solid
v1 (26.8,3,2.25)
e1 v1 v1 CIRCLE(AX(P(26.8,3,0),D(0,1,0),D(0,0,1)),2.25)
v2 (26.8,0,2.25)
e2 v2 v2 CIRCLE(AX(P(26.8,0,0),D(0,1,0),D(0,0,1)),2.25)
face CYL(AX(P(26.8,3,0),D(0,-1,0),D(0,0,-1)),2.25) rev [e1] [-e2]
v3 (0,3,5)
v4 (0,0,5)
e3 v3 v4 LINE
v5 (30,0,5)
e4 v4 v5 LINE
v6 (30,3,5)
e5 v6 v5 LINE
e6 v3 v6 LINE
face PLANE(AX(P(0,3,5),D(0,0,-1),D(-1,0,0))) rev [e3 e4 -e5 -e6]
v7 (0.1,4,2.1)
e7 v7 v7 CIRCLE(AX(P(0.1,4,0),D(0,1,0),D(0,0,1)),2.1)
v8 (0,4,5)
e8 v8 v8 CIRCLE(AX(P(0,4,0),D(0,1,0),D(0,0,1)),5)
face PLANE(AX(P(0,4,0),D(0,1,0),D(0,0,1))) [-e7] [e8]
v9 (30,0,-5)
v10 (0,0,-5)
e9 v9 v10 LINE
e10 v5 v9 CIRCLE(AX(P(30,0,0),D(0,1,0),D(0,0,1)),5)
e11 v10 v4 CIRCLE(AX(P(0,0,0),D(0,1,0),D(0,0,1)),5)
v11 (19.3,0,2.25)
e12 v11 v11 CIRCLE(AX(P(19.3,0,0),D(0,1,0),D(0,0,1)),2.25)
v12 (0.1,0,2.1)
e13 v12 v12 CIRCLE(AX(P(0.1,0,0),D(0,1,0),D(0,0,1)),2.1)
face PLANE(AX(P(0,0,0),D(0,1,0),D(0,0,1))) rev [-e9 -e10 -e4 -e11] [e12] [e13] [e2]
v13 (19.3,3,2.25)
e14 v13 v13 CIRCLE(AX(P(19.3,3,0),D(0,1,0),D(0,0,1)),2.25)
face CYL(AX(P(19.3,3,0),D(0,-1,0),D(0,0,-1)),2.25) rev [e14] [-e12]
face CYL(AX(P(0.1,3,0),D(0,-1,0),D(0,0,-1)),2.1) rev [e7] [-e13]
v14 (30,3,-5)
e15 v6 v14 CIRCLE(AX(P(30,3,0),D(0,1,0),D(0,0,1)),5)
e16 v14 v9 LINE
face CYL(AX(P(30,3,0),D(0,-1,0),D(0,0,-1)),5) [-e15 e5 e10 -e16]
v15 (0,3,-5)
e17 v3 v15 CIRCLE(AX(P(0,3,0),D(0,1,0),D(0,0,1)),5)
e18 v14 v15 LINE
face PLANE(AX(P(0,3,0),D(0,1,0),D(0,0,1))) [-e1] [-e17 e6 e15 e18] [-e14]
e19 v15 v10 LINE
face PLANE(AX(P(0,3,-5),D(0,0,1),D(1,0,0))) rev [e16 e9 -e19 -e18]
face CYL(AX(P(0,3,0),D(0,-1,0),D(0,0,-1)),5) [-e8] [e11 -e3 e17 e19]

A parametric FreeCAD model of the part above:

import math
import FreeCAD as App
import Part
import Sketcher
from FreeCAD import Vector

doc = App.newDocument("Part")
body = doc.addObject("PartDesign::Body", "Body")

# Sketch on XZ plane
sketch1 = body.newObject("Sketcher::SketchObject", "Sketch")
sketch1.AttachmentSupport = (doc.getObject("XZ_Plane"), [""])
sketch1.MapMode = "FlatFace"
sketch1.addGeometry([
    Part.LineSegment(Vector(30, -5, 0), Vector(0, -5, 0)),  # 0
    Part.ArcOfCircle(Part.Circle(Vector(0, 0, 0), Vector(0, 0, 1), 5), math.radians(90), math.radians(270)),  # 1
    Part.LineSegment(Vector(0, 5, 0), Vector(30, 5, 0)),  # 2
    Part.ArcOfCircle(Part.Circle(Vector(30, 0, 0), Vector(0, 0, 1), 5), math.radians(-90), math.radians(90)),  # 3
    Part.Circle(Vector(26.8, 0, 0), Vector(0, 0, 1), 2.2),  # 4
    Part.Circle(Vector(19.3, 0, 0), Vector(0, 0, 1), 2.2),  # 5
    Part.Circle(Vector(0.1, 0, 0), Vector(0, 0, 1), 2.1),  # 6
], False)
sketch1.addConstraint([
    Sketcher.Constraint("Tangent", 0, 2, 1, 2),
    Sketcher.Constraint("Tangent", 1, 1, 2, 1),
    Sketcher.Constraint("Tangent", 2, 2, 3, 2),
    Sketcher.Constraint("Tangent", 3, 1, 0, 1),
    Sketcher.Constraint("Horizontal", 0),
    Sketcher.Constraint("Horizontal", 2),
    Sketcher.Constraint("Coincident", 1, 3, -1, 1),
    Sketcher.Constraint("Equal", 4, 5),
    Sketcher.Constraint("PointOnObject", 4, 3, -1),
    Sketcher.Constraint("PointOnObject", 5, 3, -1),
    Sketcher.Constraint("PointOnObject", 6, 3, -1),
    Sketcher.Constraint("Radius", 1, 5.0),
    Sketcher.Constraint("Diameter", 4, 4.5),
    Sketcher.Constraint("Diameter", 6, 4.2),
    Sketcher.Constraint("DistanceX", 0, 2, 0, 1, 30.0),
    Sketcher.Constraint("DistanceX", -1, 1, 4, 3, 26.8),
    Sketcher.Constraint("DistanceX", -1, 1, 5, 3, 19.3),
    Sketcher.Constraint("DistanceX", -1, 1, 6, 3, 0.1),
])
pad1 = body.newObject("PartDesign::Pad", "Pad")
pad1.Profile = sketch1
pad1.Length = 3
pad1.Reversed = True

# Sketch on XZ plane
sketch2 = body.newObject("Sketcher::SketchObject", "Sketch001")
sketch2.AttachmentSupport = (doc.getObject("XZ_Plane"), [""])
sketch2.MapMode = "FlatFace"
sketch2.AttachmentOffset = App.Placement(Vector(0, 0, -3), App.Rotation())
sketch2.addGeometry([
    Part.Circle(Vector(0, 0, 0), Vector(0, 0, 1), 5),
    Part.Circle(Vector(0.1, 0, 0), Vector(0, 0, 1), 2.1),
], False)
sketch2.addConstraint([
    Sketcher.Constraint("Coincident", 0, 3, -1, 1),
    Sketcher.Constraint("PointOnObject", 1, 3, -1),
    Sketcher.Constraint("Diameter", 0, 10.0),
    Sketcher.Constraint("Diameter", 1, 4.2),
    Sketcher.Constraint("DistanceX", -1, 1, 1, 3, 0.1),
])
pad2 = body.newObject("PartDesign::Pad", "Pad001")
pad2.Profile = sketch2
pad2.Length = 1
pad2.Reversed = True

doc.recompute()
